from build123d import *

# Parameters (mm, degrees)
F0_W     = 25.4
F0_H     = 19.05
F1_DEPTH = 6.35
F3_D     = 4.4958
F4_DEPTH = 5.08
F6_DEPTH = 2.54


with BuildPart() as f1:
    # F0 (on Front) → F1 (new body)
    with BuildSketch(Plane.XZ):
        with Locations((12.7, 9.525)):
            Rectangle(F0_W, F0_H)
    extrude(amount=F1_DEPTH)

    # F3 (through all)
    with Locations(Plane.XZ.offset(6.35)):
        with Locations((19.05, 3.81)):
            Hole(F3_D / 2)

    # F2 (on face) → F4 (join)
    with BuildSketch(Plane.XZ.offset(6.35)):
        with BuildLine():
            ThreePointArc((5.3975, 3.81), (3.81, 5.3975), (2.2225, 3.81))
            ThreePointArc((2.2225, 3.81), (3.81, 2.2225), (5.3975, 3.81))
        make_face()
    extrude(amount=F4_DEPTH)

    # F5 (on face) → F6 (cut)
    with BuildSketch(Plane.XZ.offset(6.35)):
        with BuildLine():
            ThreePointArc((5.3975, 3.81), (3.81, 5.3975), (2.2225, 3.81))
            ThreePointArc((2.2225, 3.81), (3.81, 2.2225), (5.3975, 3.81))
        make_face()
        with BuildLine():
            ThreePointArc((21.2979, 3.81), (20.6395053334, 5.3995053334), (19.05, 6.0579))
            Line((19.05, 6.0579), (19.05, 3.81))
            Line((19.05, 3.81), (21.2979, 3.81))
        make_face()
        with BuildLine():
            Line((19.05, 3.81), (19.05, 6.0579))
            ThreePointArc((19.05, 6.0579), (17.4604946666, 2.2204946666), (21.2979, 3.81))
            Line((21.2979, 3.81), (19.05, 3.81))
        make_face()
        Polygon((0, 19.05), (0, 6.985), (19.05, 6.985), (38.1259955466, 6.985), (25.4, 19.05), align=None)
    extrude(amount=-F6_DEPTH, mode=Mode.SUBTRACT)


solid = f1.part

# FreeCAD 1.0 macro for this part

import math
import FreeCAD as App
import Part
import Sketcher
from FreeCAD import Vector
Q = App.Units.Quantity


def add_polygon(sketch, points):
    """Adds a closed chain of lines whose ends are joined by coincident constraints."""
    first, n = sketch.GeometryCount, len(points)
    for a, b in zip(points, points[1:] + points[:1]):
        sketch.addGeometry(Part.LineSegment(App.Vector(*a, 0), App.Vector(*b, 0)), False)
    for i in range(n):
        sketch.addConstraint(Sketcher.Constraint("Coincident", first + i, 2, first + (i + 1) % n, 1))

doc = App.newDocument("Part")
params = doc.addObject("Spreadsheet::Sheet", "Params")
for row, (alias, value) in enumerate([
    ("sketch1_width", "1 in"),
    ("sketch1_height", "0.75 in"),
    ("pad1_length", "0.25 in"),
    ("sketch2_diameter", "0.177 in"),
    ("hole_diameter", "0.177 in"),
    ("sketch3_diameter", "0.125 in"),
    ("pad2_length", "0.2 in"),
    ("sketch4_width", "1 in"),
    ("sketch4_diameter", "0.125 in"),
    ("sketch4_height", "0.475 in"),
    ("pocket1_length", "0.1 in"),
], start=1):
    params.set(f"A{row}", alias)
    params.set(f"B{row}", "=" + value)
    params.setAlias(f"B{row}", alias)

body = doc.addObject("PartDesign::Body", "Body")
body.AllowCompound = True

sketch1 = body.newObject("Sketcher::SketchObject", "Sketch")
sketch1.AttachmentSupport = (doc.getObject("XZ_Plane"), [""])
sketch1.MapMode = "FlatFace"
add_polygon(sketch1, [(0, 19), (0, 0), (25, 0), (25, 19)])
sketch1.addConstraint(Sketcher.Constraint("Vertical", 0))
sketch1.addConstraint(Sketcher.Constraint("Horizontal", 1))
sketch1.addConstraint(Sketcher.Constraint("Vertical", 2))
sketch1.addConstraint(Sketcher.Constraint("Horizontal", 3))
sketch1.addConstraint(Sketcher.Constraint("Coincident", 0, 2, -1, 1))
sketch1.addConstraint(Sketcher.Constraint("DistanceX", 1, 1, 1, 2, Q("1 in")))
sketch1.addConstraint(Sketcher.Constraint("DistanceY", 0, 2, 0, 1, Q("0.75 in")))
sketch1.setExpression("Constraints[9]", "Params.sketch1_width")
sketch1.setExpression("Constraints[10]", "Params.sketch1_height")
pad1 = body.newObject("PartDesign::Pad", "Pad")
pad1.Profile = sketch1
pad1.setExpression("Length", "Params.pad1_length")

sketch2 = body.newObject("Sketcher::SketchObject", "Sketch001")
sketch2.AttachmentSupport = (doc.getObject("XZ_Plane"), [""])
sketch2.MapMode = "FlatFace"
sketch2.AttachmentOffset = App.Placement(Vector(0, 0, 0.25 * 25.4), App.Rotation())
sketch2.addGeometry(Part.Circle(Vector(19.1, 3.8, 0), Vector(0, 0, 1), 2.2), False)
sketch2.addConstraint(Sketcher.Constraint("Diameter", 0, Q("0.177 in")))
sketch2.addConstraint(Sketcher.Constraint("DistanceX", -1, 1, 0, 3, Q("0.75 in")))
sketch2.addConstraint(Sketcher.Constraint("DistanceY", -1, 1, 0, 3, Q("0.15 in")))
sketch2.setExpression("Constraints[0]", "Params.sketch2_diameter")
doc.recompute()
hole = body.newObject("PartDesign::Hole", "Hole")
hole.Profile = sketch2
hole.ThreadType = "None"
hole.setExpression("Diameter", "Params.hole_diameter")
hole.DepthType = "ThroughAll"

sketch3 = body.newObject("Sketcher::SketchObject", "Sketch002")
sketch3.AttachmentSupport = (doc.getObject("XZ_Plane"), [""])
sketch3.MapMode = "FlatFace"
sketch3.AttachmentOffset = App.Placement(Vector(0, 0, 0.25 * 25.4), App.Rotation())
sketch3.addGeometry(Part.Circle(Vector(3.8, 3.8, 0), Vector(0, 0, 1), 1.6), False)
sketch3.addConstraint(Sketcher.Constraint("Diameter", 0, Q("0.125 in")))
sketch3.addConstraint(Sketcher.Constraint("DistanceX", -1, 1, 0, 3, Q("0.15 in")))
sketch3.addConstraint(Sketcher.Constraint("DistanceY", -1, 1, 0, 3, Q("0.15 in")))
sketch3.setExpression("Constraints[0]", "Params.sketch3_diameter")
pad2 = body.newObject("PartDesign::Pad", "Pad001")
pad2.Profile = sketch3
pad2.setExpression("Length", "Params.pad2_length")

sketch4 = body.newObject("Sketcher::SketchObject", "Sketch003")
sketch4.AttachmentSupport = (doc.getObject("XZ_Plane"), [""])
sketch4.MapMode = "FlatFace"
sketch4.AttachmentOffset = App.Placement(Vector(0, 0, 0.25 * 25.4), App.Rotation())
sketch4.addGeometry(Part.Circle(Vector(3.8, 3.8, 0), Vector(0, 0, 1), 1.6), False)
sketch4.addGeometry(Part.ArcOfCircle(Part.Circle(Vector(19.1, 3.8, 0), Vector(0, 0, 1), 2.2), math.radians(0), math.radians(90)), False)
sketch4.addGeometry(Part.ArcOfCircle(Part.Circle(Vector(19.1, 3.8, 0), Vector(0, 0, 1), 2.2), math.radians(90), math.radians(360)), False)
add_polygon(sketch4, [(0, 19.1), (0, 7), (38.1, 7), (25.4, 19.1)])
sketch4.addConstraint(Sketcher.Constraint("Tangent", 1, 1, 2, 2))
sketch4.addConstraint(Sketcher.Constraint("Coincident", 2, 1, 1, 2))
sketch4.addConstraint(Sketcher.Constraint("Vertical", 3))
sketch4.addConstraint(Sketcher.Constraint("Horizontal", 4))
sketch4.addConstraint(Sketcher.Constraint("Horizontal", 6))
sketch4.addConstraint(Sketcher.Constraint("PointOnObject", 3, 2, -2))
sketch4.addConstraint(Sketcher.Constraint("Horizontal", 0, 3, 1, 3))
sketch4.addConstraint(Sketcher.Constraint("Horizontal", 2, 3, 1, 1))
sketch4.addConstraint(Sketcher.Constraint("Vertical", 1, 3, 2, 1))
sketch4.addConstraint(Sketcher.Constraint("DistanceX", 6, 2, 6, 1, Q("1 in")))
sketch4.addConstraint(Sketcher.Constraint("Diameter", 0, Q("0.125 in")))
sketch4.addConstraint(Sketcher.Constraint("Radius", 1, Q("0.0885 in")))
sketch4.addConstraint(Sketcher.Constraint("DistanceX", 0, 3, 1, 3, Q("0.6 in")))
sketch4.addConstraint(Sketcher.Constraint("DistanceY", 1, 1, 5, 2, Q("0.6 in")))
sketch4.addConstraint(Sketcher.Constraint("DistanceY", 3, 2, 3, 1, Q("0.475 in")))
sketch4.addConstraint(Sketcher.Constraint("DistanceX", -1, 1, 0, 3, Q("0.15 in")))
sketch4.addConstraint(Sketcher.Constraint("DistanceY", -1, 1, 0, 3, Q("0.15 in")))
sketch4.addConstraint(Sketcher.Constraint("Distance", 5, Q("17.536111 mm")))
sketch4.setExpression("Constraints[13]", "Params.sketch4_width")
sketch4.setExpression("Constraints[14]", "Params.sketch4_diameter")
sketch4.setExpression("Constraints[18]", "Params.sketch4_height")
pocket1 = body.newObject("PartDesign::Pocket", "Pocket")
pocket1.Profile = sketch4
pocket1.setExpression("Length", "Params.pocket1_length")

doc.recompute()
